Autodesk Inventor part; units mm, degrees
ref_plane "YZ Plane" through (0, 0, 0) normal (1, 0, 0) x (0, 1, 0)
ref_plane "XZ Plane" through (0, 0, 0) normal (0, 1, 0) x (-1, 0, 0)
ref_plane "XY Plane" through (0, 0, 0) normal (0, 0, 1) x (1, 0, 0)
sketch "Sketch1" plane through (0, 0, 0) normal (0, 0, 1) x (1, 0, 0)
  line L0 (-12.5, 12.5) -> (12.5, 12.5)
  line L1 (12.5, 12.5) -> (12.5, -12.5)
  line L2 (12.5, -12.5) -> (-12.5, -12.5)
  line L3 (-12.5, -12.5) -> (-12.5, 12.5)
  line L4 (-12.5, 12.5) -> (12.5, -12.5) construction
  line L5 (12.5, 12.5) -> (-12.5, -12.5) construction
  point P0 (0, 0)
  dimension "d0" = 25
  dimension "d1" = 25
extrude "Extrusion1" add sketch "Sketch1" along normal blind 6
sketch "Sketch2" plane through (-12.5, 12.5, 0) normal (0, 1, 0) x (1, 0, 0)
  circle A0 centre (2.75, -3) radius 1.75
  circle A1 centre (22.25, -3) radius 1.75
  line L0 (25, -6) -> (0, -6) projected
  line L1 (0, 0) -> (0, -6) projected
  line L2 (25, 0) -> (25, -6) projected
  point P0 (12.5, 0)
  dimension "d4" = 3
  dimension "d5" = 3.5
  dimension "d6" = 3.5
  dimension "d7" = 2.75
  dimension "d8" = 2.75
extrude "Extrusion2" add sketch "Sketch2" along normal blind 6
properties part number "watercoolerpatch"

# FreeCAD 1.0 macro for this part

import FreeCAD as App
import Part
import Sketcher

doc = App.newDocument("Part")
body = doc.addObject("PartDesign::Body", "Body")

sketch1 = doc.addObject("Sketcher::SketchObject", "Sketch")
body.addObject(sketch1)
sketch1.AttachmentSupport = (doc.XY_Plane, [""])
sketch1.MapMode = "FlatFace"
sketch1.addGeometry(Part.LineSegment(App.Vector(12, 12, 0), App.Vector(-12, 12, 0)), False)
sketch1.addGeometry(Part.LineSegment(App.Vector(-12, 12, 0), App.Vector(-12, -12, 0)), False)
sketch1.addGeometry(Part.LineSegment(App.Vector(-12, -12, 0), App.Vector(12, -12, 0)), False)
sketch1.addGeometry(Part.LineSegment(App.Vector(12, -12, 0), App.Vector(12, 12, 0)), False)
sketch1.addConstraint(Sketcher.Constraint("Coincident", 0, 2, 1, 1))
sketch1.addConstraint(Sketcher.Constraint("Coincident", 1, 2, 2, 1))
sketch1.addConstraint(Sketcher.Constraint("Coincident", 2, 2, 3, 1))
sketch1.addConstraint(Sketcher.Constraint("Coincident", 3, 2, 0, 1))
sketch1.addConstraint(Sketcher.Constraint("Horizontal", 0))
sketch1.addConstraint(Sketcher.Constraint("Vertical", 1))
sketch1.addConstraint(Sketcher.Constraint("Horizontal", 2))
sketch1.addConstraint(Sketcher.Constraint("Vertical", 3))
sketch1.addConstraint(Sketcher.Constraint("Symmetric", 0, 2, 2, 2, -1, 1))
sketch1.addConstraint(Sketcher.Constraint("Equal", 2, 1))
sketch1.addConstraint(Sketcher.Constraint("DistanceX", 0, 2, 0, 1, 25.0))
pad1 = doc.addObject("PartDesign::Pad", "Pad")
body.addObject(pad1)
pad1.Profile = sketch1
pad1.Length = 6

sketch2 = doc.addObject("Sketcher::SketchObject", "Sketch001")
body.addObject(sketch2)
sketch2.AttachmentSupport = (doc.XZ_Plane, [""])
sketch2.MapMode = "FlatFace"
sketch2.AttachmentOffset = App.Placement(App.Vector(0, 0, -12.5), App.Rotation())
sketch2.addGeometry(Part.Circle(App.Vector(-9.8, 3, 0), App.Vector(0, 0, 1), 1.8), False)
sketch2.addGeometry(Part.Circle(App.Vector(9.8, 3, 0), App.Vector(0, 0, 1), 1.8), False)
sketch2.addConstraint(Sketcher.Constraint("Equal", 0, 1))
sketch2.addConstraint(Sketcher.Constraint("Symmetric", 0, 3, 1, 3, -2))
sketch2.addConstraint(Sketcher.Constraint("Diameter", 0, 3.5))
sketch2.addConstraint(Sketcher.Constraint("DistanceY", -1, 1, 0, 3, 3.0))
sketch2.addConstraint(Sketcher.Constraint("DistanceX", 0, 3, 1, 3, 19.5))
pad2 = doc.addObject("PartDesign::Pad", "Pad001")
body.addObject(pad2)
pad2.Profile = sketch2
pad2.Length = 6
pad2.Reversed = True

doc.recompute()
